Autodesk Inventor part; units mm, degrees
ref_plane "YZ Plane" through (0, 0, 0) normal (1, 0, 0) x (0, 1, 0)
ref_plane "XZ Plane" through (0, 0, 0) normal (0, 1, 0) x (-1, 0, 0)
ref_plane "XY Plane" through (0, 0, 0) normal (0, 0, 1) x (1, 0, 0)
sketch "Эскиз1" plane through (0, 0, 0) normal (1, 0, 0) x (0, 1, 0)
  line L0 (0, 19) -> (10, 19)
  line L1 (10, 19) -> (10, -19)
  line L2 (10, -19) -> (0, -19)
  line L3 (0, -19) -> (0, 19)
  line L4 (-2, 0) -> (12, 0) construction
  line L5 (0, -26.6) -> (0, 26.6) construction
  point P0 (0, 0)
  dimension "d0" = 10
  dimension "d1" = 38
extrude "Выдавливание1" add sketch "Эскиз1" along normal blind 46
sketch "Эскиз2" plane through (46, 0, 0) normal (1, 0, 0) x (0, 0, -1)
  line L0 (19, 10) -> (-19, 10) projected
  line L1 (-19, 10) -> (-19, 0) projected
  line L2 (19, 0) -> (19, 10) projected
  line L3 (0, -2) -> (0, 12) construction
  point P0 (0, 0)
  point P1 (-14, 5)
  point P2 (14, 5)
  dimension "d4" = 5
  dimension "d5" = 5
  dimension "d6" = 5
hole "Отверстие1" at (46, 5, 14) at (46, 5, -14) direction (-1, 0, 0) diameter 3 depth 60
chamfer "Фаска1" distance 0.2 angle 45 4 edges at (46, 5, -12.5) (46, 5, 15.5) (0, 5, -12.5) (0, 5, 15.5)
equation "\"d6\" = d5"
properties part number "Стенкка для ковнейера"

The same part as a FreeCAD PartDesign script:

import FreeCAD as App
import Part
import Sketcher

V = App.Vector
Q = App.Units.Quantity


def edges_at(feature, points):
    """Names of the edges that pass closest to the given points."""
    edges = feature.Shape.Edges
    near = lambda p: min(range(len(edges)), key=lambda i: edges[i].distToShape(Part.Vertex(*p))[0])
    return sorted({f"Edge{near(p) + 1}" for p in points})

doc = App.newDocument("Part")
body = doc.addObject("PartDesign::Body", "Body")

sketch1 = body.newObject("Sketcher::SketchObject", "Sketch")
sketch1.AttachmentSupport = (doc.getObject("YZ_Plane"), [""])
sketch1.MapMode = "FlatFace"
sketch1.addGeometry(Part.LineSegment(V(10, 19, 0), V(0, 19, 0)), False)
sketch1.addGeometry(Part.LineSegment(V(0, 19, 0), V(0, -19, 0)), False)
sketch1.addGeometry(Part.LineSegment(V(0, -19, 0), V(10, -19, 0)), False)
sketch1.addGeometry(Part.LineSegment(V(10, -19, 0), V(10, 19, 0)), False)
sketch1.addConstraint(Sketcher.Constraint("Coincident", 0, 2, 1, 1))
sketch1.addConstraint(Sketcher.Constraint("Coincident", 1, 2, 2, 1))
sketch1.addConstraint(Sketcher.Constraint("Coincident", 2, 2, 3, 1))
sketch1.addConstraint(Sketcher.Constraint("Coincident", 3, 2, 0, 1))
sketch1.addConstraint(Sketcher.Constraint("Horizontal", 0))
sketch1.addConstraint(Sketcher.Constraint("Vertical", 1))
sketch1.addConstraint(Sketcher.Constraint("Horizontal", 2))
sketch1.addConstraint(Sketcher.Constraint("Vertical", 3))
sketch1.addConstraint(Sketcher.Constraint("Symmetric", 0, 2, 1, 2, -1, 1))
sketch1.addConstraint(Sketcher.Constraint("DistanceX", 0, 2, 0, 1, Q("10 mm")))
sketch1.addConstraint(Sketcher.Constraint("DistanceY", 1, 2, 1, 1, Q("38 mm")))
pad1 = body.newObject("PartDesign::Pad", "Pad")
pad1.Profile = sketch1
pad1.Length = 46

sketch2 = body.newObject("Sketcher::SketchObject", "Sketch001")
sketch2.AttachmentSupport = (doc.getObject("YZ_Plane"), [""])
sketch2.MapMode = "FlatFace"
sketch2.AttachmentOffset = App.Placement(V(0, 0, 46), App.Rotation())
sketch2.addGeometry(Part.Circle(V(5, 14, 0), V(0, 0, 1), 1.5), False)
sketch2.addGeometry(Part.Circle(V(5, -14, 0), V(0, 0, 1), 1.5), False)
sketch2.addConstraint(Sketcher.Constraint("Equal", 0, 1))
sketch2.addConstraint(Sketcher.Constraint("Symmetric", 0, 3, 1, 3, -1))
sketch2.addConstraint(Sketcher.Constraint("Diameter", 0, Q("3 mm")))
sketch2.addConstraint(Sketcher.Constraint("DistanceX", -1, 1, 0, 3, Q("5 mm")))
sketch2.addConstraint(Sketcher.Constraint("DistanceY", -1, 1, 0, 3, Q("14 mm")))
doc.recompute()
hole = body.newObject("PartDesign::Hole", "Hole")
hole.Profile = sketch2
hole.ThreadType = "None"
hole.Diameter = 3
hole.DepthType = "Dimension"
hole.Depth = 60
hole.DrillPoint = "Flat"
doc.recompute()

chamfer = body.newObject("PartDesign::Chamfer", "Chamfer")
chamfer.Base = (hole, edges_at(hole, [
    (46, 5, -12.5),
    (46, 5, 15.5),
    (0, 5, -12.5),
    (0, 5, 15.5),
]))
chamfer.Size = 0.2

doc.recompute()
